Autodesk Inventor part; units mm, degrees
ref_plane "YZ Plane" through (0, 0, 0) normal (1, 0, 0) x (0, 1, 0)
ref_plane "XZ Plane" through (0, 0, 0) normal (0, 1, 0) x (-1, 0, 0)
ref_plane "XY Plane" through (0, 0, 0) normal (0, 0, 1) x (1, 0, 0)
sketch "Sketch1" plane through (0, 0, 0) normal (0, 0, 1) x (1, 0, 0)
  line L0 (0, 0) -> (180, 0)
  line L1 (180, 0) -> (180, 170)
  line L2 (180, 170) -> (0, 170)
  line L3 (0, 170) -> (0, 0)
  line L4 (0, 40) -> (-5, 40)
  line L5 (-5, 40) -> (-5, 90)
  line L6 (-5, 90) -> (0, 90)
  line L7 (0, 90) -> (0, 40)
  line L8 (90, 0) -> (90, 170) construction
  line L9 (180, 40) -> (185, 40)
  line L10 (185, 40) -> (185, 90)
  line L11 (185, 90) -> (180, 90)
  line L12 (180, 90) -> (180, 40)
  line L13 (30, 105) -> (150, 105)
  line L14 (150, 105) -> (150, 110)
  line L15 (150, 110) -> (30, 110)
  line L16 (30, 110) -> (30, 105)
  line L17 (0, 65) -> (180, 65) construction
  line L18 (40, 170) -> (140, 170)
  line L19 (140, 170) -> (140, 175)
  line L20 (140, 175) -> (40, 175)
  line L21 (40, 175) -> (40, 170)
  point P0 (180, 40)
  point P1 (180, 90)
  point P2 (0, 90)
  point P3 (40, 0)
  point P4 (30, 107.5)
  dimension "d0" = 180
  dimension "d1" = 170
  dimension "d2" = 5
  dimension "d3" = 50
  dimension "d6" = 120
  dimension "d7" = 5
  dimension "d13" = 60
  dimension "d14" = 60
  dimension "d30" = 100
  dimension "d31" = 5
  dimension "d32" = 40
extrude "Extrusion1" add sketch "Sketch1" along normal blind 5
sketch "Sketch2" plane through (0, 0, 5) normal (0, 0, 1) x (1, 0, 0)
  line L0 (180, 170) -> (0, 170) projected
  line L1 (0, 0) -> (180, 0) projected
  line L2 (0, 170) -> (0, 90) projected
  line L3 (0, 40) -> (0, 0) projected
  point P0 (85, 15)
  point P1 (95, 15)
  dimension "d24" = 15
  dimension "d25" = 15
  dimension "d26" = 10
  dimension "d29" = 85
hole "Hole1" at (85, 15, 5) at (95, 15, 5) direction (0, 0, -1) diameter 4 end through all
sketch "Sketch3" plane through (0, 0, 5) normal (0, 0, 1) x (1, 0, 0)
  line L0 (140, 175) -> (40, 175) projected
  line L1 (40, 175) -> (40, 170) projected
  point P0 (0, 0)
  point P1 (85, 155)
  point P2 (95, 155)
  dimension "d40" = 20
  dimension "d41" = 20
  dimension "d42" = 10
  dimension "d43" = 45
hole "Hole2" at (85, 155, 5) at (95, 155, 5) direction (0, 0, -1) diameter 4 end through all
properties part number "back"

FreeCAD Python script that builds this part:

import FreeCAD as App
import Part
import Sketcher

V = App.Vector
Q = App.Units.Quantity


def add_polygon(sketch, points):
    """Adds a closed chain of lines whose ends are joined by coincident constraints."""
    first, n = sketch.GeometryCount, len(points)
    for a, b in zip(points, points[1:] + points[:1]):
        sketch.addGeometry(Part.LineSegment(App.Vector(*a, 0), App.Vector(*b, 0)), False)
    for i in range(n):
        sketch.addConstraint(Sketcher.Constraint("Coincident", first + i, 2, first + (i + 1) % n, 1))

doc = App.newDocument("Part")
body = doc.addObject("PartDesign::Body", "Body")

sketch1 = doc.addObject("Sketcher::SketchObject", "Sketch")
body.addObject(sketch1)
sketch1.AttachmentSupport = (doc.XY_Plane, [""])
sketch1.MapMode = "FlatFace"
add_polygon(sketch1, [(0, 40), (0, 0), (180, 0), (180, 40), (185, 40), (185, 90), (180, 90), (180, 170), (140, 170), (140, 175), (40, 175), (40, 170), (0, 170), (0, 90), (-5, 90), (-5, 40)])
add_polygon(sketch1, [(150, 105), (30, 105), (30, 110), (150, 110)])
sketch1.addConstraint(Sketcher.Constraint("Vertical", 0))
sketch1.addConstraint(Sketcher.Constraint("Horizontal", 1))
sketch1.addConstraint(Sketcher.Constraint("Vertical", 2))
sketch1.addConstraint(Sketcher.Constraint("Horizontal", 3))
sketch1.addConstraint(Sketcher.Constraint("Vertical", 4))
sketch1.addConstraint(Sketcher.Constraint("Horizontal", 5))
sketch1.addConstraint(Sketcher.Constraint("Vertical", 6))
sketch1.addConstraint(Sketcher.Constraint("Horizontal", 7))
sketch1.addConstraint(Sketcher.Constraint("Vertical", 8))
sketch1.addConstraint(Sketcher.Constraint("Horizontal", 9))
sketch1.addConstraint(Sketcher.Constraint("Vertical", 10))
sketch1.addConstraint(Sketcher.Constraint("Horizontal", 11))
sketch1.addConstraint(Sketcher.Constraint("Vertical", 12))
sketch1.addConstraint(Sketcher.Constraint("Horizontal", 13))
sketch1.addConstraint(Sketcher.Constraint("Vertical", 14))
sketch1.addConstraint(Sketcher.Constraint("Horizontal", 15))
sketch1.addConstraint(Sketcher.Constraint("Horizontal", 16))
sketch1.addConstraint(Sketcher.Constraint("Vertical", 17))
sketch1.addConstraint(Sketcher.Constraint("Horizontal", 18))
sketch1.addConstraint(Sketcher.Constraint("Vertical", 19))
sketch1.addConstraint(Sketcher.Constraint("Coincident", 0, 2, -1, 1))
sketch1.addConstraint(Sketcher.Constraint("PointOnObject", 11, 2, -2))
sketch1.addConstraint(Sketcher.Constraint("Horizontal", 7, 2, 10, 2))
sketch1.addConstraint(Sketcher.Constraint("Horizontal", 5, 2, 12, 2))
sketch1.addConstraint(Sketcher.Constraint("Horizontal", 3, 2, 14, 2))
sketch1.addConstraint(Sketcher.Constraint("Vertical", 2, 2, 5, 2))
sketch1.addConstraint(Sketcher.Constraint("Equal", 7, 11))
sketch1.addConstraint(Sketcher.Constraint("Equal", 5, 13))
sketch1.addConstraint(Sketcher.Constraint("Equal", 11, 0))
sketch1.addConstraint(Sketcher.Constraint("Equal", 15, 8))
sketch1.addConstraint(Sketcher.Constraint("Equal", 10, 17))
sketch1.addConstraint(Sketcher.Constraint("DistanceX", 1, 1, 1, 2, Q("180 mm")))
sketch1.addConstraint(Sketcher.Constraint("DistanceX", 3, 1, 3, 2, Q("5 mm")))
sketch1.addConstraint(Sketcher.Constraint("DistanceX", 7, 2, 7, 1, Q("40 mm")))
sketch1.addConstraint(Sketcher.Constraint("DistanceX", 16, 2, 16, 1, Q("120 mm")))
sketch1.addConstraint(Sketcher.Constraint("DistanceY", 4, 1, 4, 2, Q("50 mm")))
sketch1.addConstraint(Sketcher.Constraint("DistanceY", -1, 1, 6, 2, Q("170 mm")))
sketch1.addConstraint(Sketcher.Constraint("DistanceY", 17, 2, 10, 2, Q("60 mm")))
sketch1.addConstraint(Sketcher.Constraint("DistanceX", -1, 1, 16, 2, Q("30 mm")))
pad1 = doc.addObject("PartDesign::Pad", "Pad")
body.addObject(pad1)
pad1.Profile = sketch1
pad1.Length = 5

sketch2 = doc.addObject("Sketcher::SketchObject", "Sketch001")
body.addObject(sketch2)
sketch2.AttachmentSupport = (doc.XY_Plane, [""])
sketch2.MapMode = "FlatFace"
sketch2.AttachmentOffset = App.Placement(V(0, 0, 5), App.Rotation())
sketch2.addGeometry(Part.Circle(V(85, 15, 0), V(0, 0, 1), 2), False)
sketch2.addGeometry(Part.Circle(V(95, 15, 0), V(0, 0, 1), 2), False)
sketch2.addConstraint(Sketcher.Constraint("Equal", 0, 1))
sketch2.addConstraint(Sketcher.Constraint("Horizontal", 0, 3, 1, 3))
sketch2.addConstraint(Sketcher.Constraint("Diameter", 0, Q("4 mm")))
sketch2.addConstraint(Sketcher.Constraint("DistanceX", -1, 1, 0, 3, Q("85 mm")))
sketch2.addConstraint(Sketcher.Constraint("DistanceY", -1, 1, 0, 3, Q("15 mm")))
sketch2.addConstraint(Sketcher.Constraint("DistanceX", -1, 1, 1, 3, Q("95 mm")))
doc.recompute()
hole = doc.addObject("PartDesign::Hole", "Hole")
body.addObject(hole)
hole.Profile = sketch2
hole.ThreadType = "None"
hole.Diameter = 4
hole.DepthType = "ThroughAll"

sketch3 = doc.addObject("Sketcher::SketchObject", "Sketch002")
body.addObject(sketch3)
sketch3.AttachmentSupport = (doc.XY_Plane, [""])
sketch3.MapMode = "FlatFace"
sketch3.AttachmentOffset = App.Placement(V(0, 0, 5), App.Rotation())
sketch3.addGeometry(Part.Circle(V(85, 155, 0), V(0, 0, 1), 2), False)
sketch3.addGeometry(Part.Circle(V(95, 155, 0), V(0, 0, 1), 2), False)
sketch3.addConstraint(Sketcher.Constraint("Equal", 0, 1))
sketch3.addConstraint(Sketcher.Constraint("Horizontal", 0, 3, 1, 3))
sketch3.addConstraint(Sketcher.Constraint("Diameter", 0, Q("4 mm")))
sketch3.addConstraint(Sketcher.Constraint("DistanceX", -1, 1, 0, 3, Q("85 mm")))
sketch3.addConstraint(Sketcher.Constraint("DistanceY", -1, 1, 0, 3, Q("155 mm")))
sketch3.addConstraint(Sketcher.Constraint("DistanceX", -1, 1, 1, 3, Q("95 mm")))
doc.recompute()
hole2 = doc.addObject("PartDesign::Hole", "Hole001")
body.addObject(hole2)
hole2.Profile = sketch3
hole2.ThreadType = "None"
hole2.Diameter = 4
hole2.DepthType = "ThroughAll"

doc.recompute()
